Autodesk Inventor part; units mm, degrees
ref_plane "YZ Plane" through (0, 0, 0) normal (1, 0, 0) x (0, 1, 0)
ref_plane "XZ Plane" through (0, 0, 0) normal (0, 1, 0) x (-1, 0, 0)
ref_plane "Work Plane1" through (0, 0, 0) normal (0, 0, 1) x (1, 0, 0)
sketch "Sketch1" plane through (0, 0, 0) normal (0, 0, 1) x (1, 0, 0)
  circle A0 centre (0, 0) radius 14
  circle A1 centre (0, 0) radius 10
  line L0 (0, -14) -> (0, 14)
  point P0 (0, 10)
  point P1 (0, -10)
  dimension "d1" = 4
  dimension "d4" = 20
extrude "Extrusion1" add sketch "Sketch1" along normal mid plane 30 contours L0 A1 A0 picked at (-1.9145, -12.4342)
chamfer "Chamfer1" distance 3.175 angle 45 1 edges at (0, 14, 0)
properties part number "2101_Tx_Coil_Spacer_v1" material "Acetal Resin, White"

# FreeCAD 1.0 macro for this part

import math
import FreeCAD as App
import Part
import Sketcher

V = App.Vector


def edges_at(feature, points):
    """Names of the edges that pass closest to the given points."""
    edges = feature.Shape.Edges
    near = lambda p: min(range(len(edges)), key=lambda i: edges[i].distToShape(Part.Vertex(*p))[0])
    return sorted({f"Edge{near(p) + 1}" for p in points})

doc = App.newDocument("Part")
body = doc.addObject("PartDesign::Body", "Body")

sketch1 = body.newObject("Sketcher::SketchObject", "Sketch")
sketch1.AttachmentSupport = (doc.getObject("XY_Plane"), [""])
sketch1.MapMode = "FlatFace"
sketch1.addGeometry(Part.LineSegment(V(0, 10, 0), V(0, 14, 0)), False)
sketch1.addGeometry(Part.ArcOfCircle(Part.Circle(V(0, 0, 0), V(0, 0, 1), 14), math.radians(90), math.radians(270)), False)
sketch1.addGeometry(Part.LineSegment(V(0, -14, 0), V(0, -10, 0)), False)
sketch1.addGeometry(Part.ArcOfCircle(Part.Circle(V(0, 0, 0), V(0, 0, 1), 10), math.radians(90), math.radians(270)), False)
sketch1.addConstraint(Sketcher.Constraint("Coincident", 0, 2, 1, 1))
sketch1.addConstraint(Sketcher.Constraint("Coincident", 1, 2, 2, 1))
sketch1.addConstraint(Sketcher.Constraint("Coincident", 2, 2, 3, 2))
sketch1.addConstraint(Sketcher.Constraint("Coincident", 3, 1, 0, 1))
sketch1.addConstraint(Sketcher.Constraint("Vertical", 0))
sketch1.addConstraint(Sketcher.Constraint("Vertical", 2))
sketch1.addConstraint(Sketcher.Constraint("Coincident", 1, 3, -1, 1))
sketch1.addConstraint(Sketcher.Constraint("Coincident", 3, 3, -1, 1))
sketch1.addConstraint(Sketcher.Constraint("PointOnObject", 0, 2, -2))
sketch1.addConstraint(Sketcher.Constraint("PointOnObject", 1, 2, -2))
sketch1.addConstraint(Sketcher.Constraint("Radius", 3, 10.0))
sketch1.addConstraint(Sketcher.Constraint("DistanceY", 0, 1, 0, 2, 4.0))
pad1 = body.newObject("PartDesign::Pad", "Pad")
pad1.Profile = sketch1
pad1.Length = 30
pad1.Midplane = True
doc.recompute()

chamfer = body.newObject("PartDesign::Chamfer", "Chamfer")
chamfer.Base = (pad1, edges_at(pad1, [(0, 14, 0)]))
chamfer.Size = 3.175

doc.recompute()
